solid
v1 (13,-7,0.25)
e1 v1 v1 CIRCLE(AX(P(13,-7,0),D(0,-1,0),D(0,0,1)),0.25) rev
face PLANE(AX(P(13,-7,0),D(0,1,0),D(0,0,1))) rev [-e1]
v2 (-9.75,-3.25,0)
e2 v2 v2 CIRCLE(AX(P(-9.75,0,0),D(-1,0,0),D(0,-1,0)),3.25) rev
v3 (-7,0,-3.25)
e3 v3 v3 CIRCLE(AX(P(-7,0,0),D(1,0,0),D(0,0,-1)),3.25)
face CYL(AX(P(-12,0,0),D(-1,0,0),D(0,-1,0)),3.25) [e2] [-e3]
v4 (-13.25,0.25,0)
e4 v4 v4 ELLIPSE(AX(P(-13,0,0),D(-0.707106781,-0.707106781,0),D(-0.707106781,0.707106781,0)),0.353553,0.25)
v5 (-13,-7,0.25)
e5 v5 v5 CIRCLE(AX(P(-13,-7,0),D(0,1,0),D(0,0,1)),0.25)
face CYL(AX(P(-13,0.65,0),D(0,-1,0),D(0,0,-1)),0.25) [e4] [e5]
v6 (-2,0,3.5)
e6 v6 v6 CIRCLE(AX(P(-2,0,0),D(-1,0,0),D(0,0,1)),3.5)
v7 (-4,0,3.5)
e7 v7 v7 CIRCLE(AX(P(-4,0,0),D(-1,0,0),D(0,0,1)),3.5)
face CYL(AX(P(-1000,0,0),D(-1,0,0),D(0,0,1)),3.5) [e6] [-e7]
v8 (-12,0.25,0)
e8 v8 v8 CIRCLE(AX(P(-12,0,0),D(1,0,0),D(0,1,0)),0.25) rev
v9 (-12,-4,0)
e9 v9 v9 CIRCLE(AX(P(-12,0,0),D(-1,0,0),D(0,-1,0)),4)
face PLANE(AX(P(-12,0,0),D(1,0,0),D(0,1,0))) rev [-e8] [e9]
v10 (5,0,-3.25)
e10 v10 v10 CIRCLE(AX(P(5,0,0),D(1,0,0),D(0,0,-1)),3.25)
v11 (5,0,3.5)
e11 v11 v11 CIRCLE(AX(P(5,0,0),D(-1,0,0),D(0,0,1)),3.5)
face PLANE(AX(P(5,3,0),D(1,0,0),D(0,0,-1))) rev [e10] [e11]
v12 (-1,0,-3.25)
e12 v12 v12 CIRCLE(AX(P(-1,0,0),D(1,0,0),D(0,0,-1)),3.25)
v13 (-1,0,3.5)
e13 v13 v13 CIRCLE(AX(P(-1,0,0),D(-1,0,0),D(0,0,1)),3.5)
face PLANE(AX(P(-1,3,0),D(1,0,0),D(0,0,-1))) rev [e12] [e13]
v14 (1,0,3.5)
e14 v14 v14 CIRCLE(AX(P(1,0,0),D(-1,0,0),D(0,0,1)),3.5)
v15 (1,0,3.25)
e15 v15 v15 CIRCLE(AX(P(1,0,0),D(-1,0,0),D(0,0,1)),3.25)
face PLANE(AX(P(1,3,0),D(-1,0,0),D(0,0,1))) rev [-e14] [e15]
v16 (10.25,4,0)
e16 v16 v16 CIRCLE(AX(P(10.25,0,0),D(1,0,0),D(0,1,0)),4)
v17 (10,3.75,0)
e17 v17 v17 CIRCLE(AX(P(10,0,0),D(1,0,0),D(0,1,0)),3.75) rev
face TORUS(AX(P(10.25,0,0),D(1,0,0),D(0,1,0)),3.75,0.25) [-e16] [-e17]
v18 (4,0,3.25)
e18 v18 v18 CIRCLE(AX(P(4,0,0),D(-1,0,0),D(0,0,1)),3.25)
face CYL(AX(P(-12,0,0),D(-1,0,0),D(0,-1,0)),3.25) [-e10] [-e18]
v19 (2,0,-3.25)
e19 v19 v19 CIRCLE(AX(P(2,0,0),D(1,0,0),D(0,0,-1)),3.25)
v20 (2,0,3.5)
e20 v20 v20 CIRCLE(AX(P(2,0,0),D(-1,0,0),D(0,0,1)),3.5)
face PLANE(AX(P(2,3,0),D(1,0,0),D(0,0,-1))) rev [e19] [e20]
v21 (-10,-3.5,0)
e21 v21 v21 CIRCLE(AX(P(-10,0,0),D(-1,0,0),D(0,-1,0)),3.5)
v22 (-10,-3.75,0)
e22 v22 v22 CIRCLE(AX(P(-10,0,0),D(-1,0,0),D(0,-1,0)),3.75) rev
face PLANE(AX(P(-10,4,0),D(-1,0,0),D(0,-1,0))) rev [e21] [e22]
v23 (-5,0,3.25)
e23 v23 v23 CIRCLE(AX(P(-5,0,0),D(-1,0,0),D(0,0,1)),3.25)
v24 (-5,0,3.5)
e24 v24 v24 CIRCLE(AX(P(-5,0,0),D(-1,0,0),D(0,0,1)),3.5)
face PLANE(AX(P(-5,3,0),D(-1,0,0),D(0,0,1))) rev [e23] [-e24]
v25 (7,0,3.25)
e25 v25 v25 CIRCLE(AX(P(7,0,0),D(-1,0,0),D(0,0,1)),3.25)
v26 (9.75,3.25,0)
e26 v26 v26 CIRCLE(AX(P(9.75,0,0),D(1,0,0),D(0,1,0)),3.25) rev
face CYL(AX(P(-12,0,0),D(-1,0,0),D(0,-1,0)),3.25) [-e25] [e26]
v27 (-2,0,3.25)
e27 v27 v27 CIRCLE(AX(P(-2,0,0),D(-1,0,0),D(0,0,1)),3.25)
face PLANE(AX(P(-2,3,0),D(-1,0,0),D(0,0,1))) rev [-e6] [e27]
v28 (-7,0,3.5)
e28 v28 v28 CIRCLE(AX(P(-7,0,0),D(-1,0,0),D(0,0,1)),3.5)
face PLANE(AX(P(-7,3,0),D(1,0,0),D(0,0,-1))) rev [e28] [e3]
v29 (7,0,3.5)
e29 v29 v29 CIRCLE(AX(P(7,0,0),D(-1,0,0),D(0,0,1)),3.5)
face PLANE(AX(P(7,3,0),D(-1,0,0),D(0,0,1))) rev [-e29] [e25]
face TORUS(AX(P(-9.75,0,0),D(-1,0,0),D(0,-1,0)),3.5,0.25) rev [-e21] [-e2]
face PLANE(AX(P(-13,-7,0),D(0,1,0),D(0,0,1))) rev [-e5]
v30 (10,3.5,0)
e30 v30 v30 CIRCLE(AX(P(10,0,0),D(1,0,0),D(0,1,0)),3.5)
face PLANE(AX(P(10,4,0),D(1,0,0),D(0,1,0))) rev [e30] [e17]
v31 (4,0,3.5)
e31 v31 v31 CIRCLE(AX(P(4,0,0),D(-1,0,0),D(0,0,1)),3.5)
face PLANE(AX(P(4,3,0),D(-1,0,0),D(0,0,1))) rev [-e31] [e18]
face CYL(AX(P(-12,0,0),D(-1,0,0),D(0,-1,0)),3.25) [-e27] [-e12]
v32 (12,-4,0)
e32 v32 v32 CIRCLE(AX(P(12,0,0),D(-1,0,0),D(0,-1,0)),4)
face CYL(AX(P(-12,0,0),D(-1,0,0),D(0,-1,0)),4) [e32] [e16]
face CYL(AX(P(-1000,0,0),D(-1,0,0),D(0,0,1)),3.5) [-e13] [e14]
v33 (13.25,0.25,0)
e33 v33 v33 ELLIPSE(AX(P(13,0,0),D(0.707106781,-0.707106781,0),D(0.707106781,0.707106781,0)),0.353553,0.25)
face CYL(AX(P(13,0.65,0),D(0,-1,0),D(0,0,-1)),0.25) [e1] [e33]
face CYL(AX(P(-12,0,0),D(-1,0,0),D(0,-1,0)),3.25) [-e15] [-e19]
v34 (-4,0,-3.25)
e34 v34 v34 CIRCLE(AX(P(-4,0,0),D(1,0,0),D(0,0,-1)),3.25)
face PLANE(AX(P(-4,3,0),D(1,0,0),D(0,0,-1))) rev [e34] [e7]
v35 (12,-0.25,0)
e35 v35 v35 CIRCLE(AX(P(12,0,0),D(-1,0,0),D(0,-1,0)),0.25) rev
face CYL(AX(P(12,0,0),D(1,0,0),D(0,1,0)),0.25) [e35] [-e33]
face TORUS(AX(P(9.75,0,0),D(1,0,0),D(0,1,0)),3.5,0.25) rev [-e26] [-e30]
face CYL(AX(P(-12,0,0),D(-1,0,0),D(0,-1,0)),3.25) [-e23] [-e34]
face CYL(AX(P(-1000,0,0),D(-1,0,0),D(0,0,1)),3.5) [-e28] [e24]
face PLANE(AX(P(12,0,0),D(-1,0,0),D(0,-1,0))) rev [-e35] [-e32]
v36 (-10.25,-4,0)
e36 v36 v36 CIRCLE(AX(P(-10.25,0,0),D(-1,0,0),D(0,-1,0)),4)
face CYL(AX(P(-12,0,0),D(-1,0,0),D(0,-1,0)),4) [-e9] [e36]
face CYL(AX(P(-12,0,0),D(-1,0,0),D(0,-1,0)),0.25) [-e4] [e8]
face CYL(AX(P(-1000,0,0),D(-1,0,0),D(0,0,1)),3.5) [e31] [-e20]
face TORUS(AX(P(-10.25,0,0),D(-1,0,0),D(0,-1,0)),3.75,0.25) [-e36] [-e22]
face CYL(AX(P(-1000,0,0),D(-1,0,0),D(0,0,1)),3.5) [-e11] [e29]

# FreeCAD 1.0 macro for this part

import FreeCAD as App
import Part
import Sketcher

V = App.Vector


def edges_at(feature, points):
    """Names of the edges that pass closest to the given points."""
    edges = feature.Shape.Edges
    near = lambda p: min(range(len(edges)), key=lambda i: edges[i].distToShape(Part.Vertex(*p))[0])
    return sorted({f"Edge{near(p) + 1}" for p in points})

doc = App.newDocument("Part")
body = doc.addObject("PartDesign::Body", "Body")

sketch1 = body.newObject("Sketcher::SketchObject", "Sketch")
sketch1.AttachmentSupport = (doc.getObject("XY_Plane"), [""])
sketch1.MapMode = "FlatFace"
sketch1.addGeometry(Part.LineSegment(V(-12, 4, 0), V(-12, 0, 0)), False)
sketch1.addGeometry(Part.LineSegment(V(-12, 0, 0), V(12, 0, 0)), False)
sketch1.addGeometry(Part.LineSegment(V(12, 0, 0), V(12, 4, 0)), False)
sketch1.addGeometry(Part.LineSegment(V(12, 4, 0), V(10, 4, 0)), False)
sketch1.addGeometry(Part.LineSegment(V(10, 4, 0), V(10, 3.2, 0)), False)
sketch1.addGeometry(Part.LineSegment(V(10, 3.2, 0), V(-10, 3.2, 0)), False)
sketch1.addGeometry(Part.LineSegment(V(-10, 3.2, 0), V(-10, 4, 0)), False)
sketch1.addGeometry(Part.LineSegment(V(-10, 4, 0), V(-12, 4, 0)), False)
sketch1.addConstraint(Sketcher.Constraint("Coincident", 0, 2, 1, 1))
sketch1.addConstraint(Sketcher.Constraint("Coincident", 1, 2, 2, 1))
sketch1.addConstraint(Sketcher.Constraint("Coincident", 2, 2, 3, 1))
sketch1.addConstraint(Sketcher.Constraint("Coincident", 3, 2, 4, 1))
sketch1.addConstraint(Sketcher.Constraint("Coincident", 4, 2, 5, 1))
sketch1.addConstraint(Sketcher.Constraint("Coincident", 5, 2, 6, 1))
sketch1.addConstraint(Sketcher.Constraint("Coincident", 6, 2, 7, 1))
sketch1.addConstraint(Sketcher.Constraint("Coincident", 7, 2, 0, 1))
sketch1.addConstraint(Sketcher.Constraint("Vertical", 0))
sketch1.addConstraint(Sketcher.Constraint("Horizontal", 1))
sketch1.addConstraint(Sketcher.Constraint("Vertical", 2))
sketch1.addConstraint(Sketcher.Constraint("Horizontal", 3))
sketch1.addConstraint(Sketcher.Constraint("Vertical", 4))
sketch1.addConstraint(Sketcher.Constraint("Horizontal", 5))
sketch1.addConstraint(Sketcher.Constraint("Vertical", 6))
sketch1.addConstraint(Sketcher.Constraint("Horizontal", 7))
sketch1.addConstraint(Sketcher.Constraint("Symmetric", 0, 2, 1, 2, -1, 1))
sketch1.addConstraint(Sketcher.Constraint("Symmetric", 3, 2, 6, 2, -2))
sketch1.addConstraint(Sketcher.Constraint("DistanceX", 1, 1, 1, 2, 24.0))
sketch1.addConstraint(Sketcher.Constraint("DistanceX", 3, 2, 3, 1, 2.0))
sketch1.addConstraint(Sketcher.Constraint("DistanceY", 0, 2, 0, 1, 4.0))
sketch1.addConstraint(Sketcher.Constraint("DistanceY", 4, 2, 4, 1, 0.75))
revolution = body.newObject("PartDesign::Revolution", "Revolution")
revolution.Profile = sketch1
revolution.ReferenceAxis = (sketch1, ["H_Axis"])
revolution.Angle = 360
doc.recompute()

fillet = body.newObject("PartDesign::Fillet", "Fillet")
fillet.Base = (revolution, edges_at(revolution, [
    (-10, 4, 0),
    (-10, 3.25, 0),
    (10, 3.25, 0),
    (10, 4, 0),
]))
fillet.Radius = 0.25

sketch2 = body.newObject("Sketcher::SketchObject", "Sketch001")
sketch2.AttachmentSupport = (doc.getObject("XY_Plane"), [""])
sketch2.MapMode = "FlatFace"
sketch2.addGeometry(Part.LineSegment(V(2, 3.5, 0), V(2, 3, 0)), False)
sketch2.addGeometry(Part.LineSegment(V(2, 3, 0), V(4, 3, 0)), False)
sketch2.addGeometry(Part.LineSegment(V(4, 3, 0), V(4, 3.5, 0)), False)
sketch2.addGeometry(Part.LineSegment(V(4, 3.5, 0), V(2, 3.5, 0)), False)
sketch2.addGeometry(Part.LineSegment(V(-1, 3.5, 0), V(-1, 3, 0)), False)
sketch2.addGeometry(Part.LineSegment(V(-1, 3, 0), V(1, 3, 0)), False)
sketch2.addGeometry(Part.LineSegment(V(1, 3, 0), V(1, 3.5, 0)), False)
sketch2.addGeometry(Part.LineSegment(V(1, 3.5, 0), V(-1, 3.5, 0)), False)
sketch2.addGeometry(Part.LineSegment(V(5, 3.5, 0), V(5, 3, 0)), False)
sketch2.addGeometry(Part.LineSegment(V(5, 3, 0), V(7, 3, 0)), False)
sketch2.addGeometry(Part.LineSegment(V(7, 3, 0), V(7, 3.5, 0)), False)
sketch2.addGeometry(Part.LineSegment(V(7, 3.5, 0), V(5, 3.5, 0)), False)
sketch2.addGeometry(Part.LineSegment(V(-4, 3.5, 0), V(-4, 3, 0)), False)
sketch2.addGeometry(Part.LineSegment(V(-4, 3, 0), V(-2, 3, 0)), False)
sketch2.addGeometry(Part.LineSegment(V(-2, 3, 0), V(-2, 3.5, 0)), False)
sketch2.addGeometry(Part.LineSegment(V(-2, 3.5, 0), V(-4, 3.5, 0)), False)
sketch2.addGeometry(Part.LineSegment(V(-7, 3.5, 0), V(-7, 3, 0)), False)
sketch2.addGeometry(Part.LineSegment(V(-7, 3, 0), V(-5, 3, 0)), False)
sketch2.addGeometry(Part.LineSegment(V(-5, 3, 0), V(-5, 3.5, 0)), False)
sketch2.addGeometry(Part.LineSegment(V(-5, 3.5, 0), V(-7, 3.5, 0)), False)
sketch2.addConstraint(Sketcher.Constraint("Coincident", 0, 2, 1, 1))
sketch2.addConstraint(Sketcher.Constraint("Coincident", 1, 2, 2, 1))
sketch2.addConstraint(Sketcher.Constraint("Coincident", 2, 2, 3, 1))
sketch2.addConstraint(Sketcher.Constraint("Coincident", 3, 2, 0, 1))
sketch2.addConstraint(Sketcher.Constraint("Coincident", 4, 2, 5, 1))
sketch2.addConstraint(Sketcher.Constraint("Coincident", 5, 2, 6, 1))
sketch2.addConstraint(Sketcher.Constraint("Coincident", 6, 2, 7, 1))
sketch2.addConstraint(Sketcher.Constraint("Coincident", 7, 2, 4, 1))
sketch2.addConstraint(Sketcher.Constraint("Coincident", 8, 2, 9, 1))
sketch2.addConstraint(Sketcher.Constraint("Coincident", 9, 2, 10, 1))
sketch2.addConstraint(Sketcher.Constraint("Coincident", 10, 2, 11, 1))
sketch2.addConstraint(Sketcher.Constraint("Coincident", 11, 2, 8, 1))
sketch2.addConstraint(Sketcher.Constraint("Coincident", 12, 2, 13, 1))
sketch2.addConstraint(Sketcher.Constraint("Coincident", 13, 2, 14, 1))
sketch2.addConstraint(Sketcher.Constraint("Coincident", 14, 2, 15, 1))
sketch2.addConstraint(Sketcher.Constraint("Coincident", 15, 2, 12, 1))
sketch2.addConstraint(Sketcher.Constraint("Coincident", 16, 2, 17, 1))
sketch2.addConstraint(Sketcher.Constraint("Coincident", 17, 2, 18, 1))
sketch2.addConstraint(Sketcher.Constraint("Coincident", 18, 2, 19, 1))
sketch2.addConstraint(Sketcher.Constraint("Coincident", 19, 2, 16, 1))
sketch2.addConstraint(Sketcher.Constraint("Vertical", 0))
sketch2.addConstraint(Sketcher.Constraint("Horizontal", 1))
sketch2.addConstraint(Sketcher.Constraint("Vertical", 2))
sketch2.addConstraint(Sketcher.Constraint("Horizontal", 3))
sketch2.addConstraint(Sketcher.Constraint("Vertical", 4))
sketch2.addConstraint(Sketcher.Constraint("Horizontal", 5))
sketch2.addConstraint(Sketcher.Constraint("Vertical", 6))
sketch2.addConstraint(Sketcher.Constraint("Horizontal", 7))
sketch2.addConstraint(Sketcher.Constraint("Vertical", 8))
sketch2.addConstraint(Sketcher.Constraint("Horizontal", 9))
sketch2.addConstraint(Sketcher.Constraint("Vertical", 10))
sketch2.addConstraint(Sketcher.Constraint("Horizontal", 11))
sketch2.addConstraint(Sketcher.Constraint("Vertical", 12))
sketch2.addConstraint(Sketcher.Constraint("Horizontal", 13))
sketch2.addConstraint(Sketcher.Constraint("Vertical", 14))
sketch2.addConstraint(Sketcher.Constraint("Horizontal", 15))
sketch2.addConstraint(Sketcher.Constraint("Vertical", 16))
sketch2.addConstraint(Sketcher.Constraint("Horizontal", 17))
sketch2.addConstraint(Sketcher.Constraint("Vertical", 18))
sketch2.addConstraint(Sketcher.Constraint("Horizontal", 19))
sketch2.addConstraint(Sketcher.Constraint("Symmetric", 1, 2, 12, 2, -2))
sketch2.addConstraint(Sketcher.Constraint("Symmetric", 3, 2, 14, 2, -2))
sketch2.addConstraint(Sketcher.Constraint("Symmetric", 9, 2, 16, 2, -2))
sketch2.addConstraint(Sketcher.Constraint("Symmetric", 11, 2, 18, 2, -2))
sketch2.addConstraint(Sketcher.Constraint("Horizontal", 1, 2, 4, 2))
sketch2.addConstraint(Sketcher.Constraint("Horizontal", 3, 2, 6, 2))
sketch2.addConstraint(Sketcher.Constraint("Horizontal", 5, 2, 8, 2))
sketch2.addConstraint(Sketcher.Constraint("Horizontal", 7, 2, 10, 2))
sketch2.addConstraint(Sketcher.Constraint("Equal", 3, 5))
sketch2.addConstraint(Sketcher.Constraint("Equal", 7, 9))
sketch2.addConstraint(Sketcher.Constraint("DistanceX", 1, 1, 1, 2, 2.0))
sketch2.addConstraint(Sketcher.Constraint("DistanceY", 0, 2, 0, 1, 0.5))
sketch2.addConstraint(Sketcher.Constraint("DistanceX", -1, 1, 0, 2, 2.0))
sketch2.addConstraint(Sketcher.Constraint("DistanceY", -1, 1, 0, 2, 3.0))
sketch2.addConstraint(Sketcher.Constraint("DistanceX", 4, 2, -1, 1, 1.0))
sketch2.addConstraint(Sketcher.Constraint("DistanceX", -1, 1, 8, 2, 5.0))
revolution2 = body.newObject("PartDesign::Revolution", "Revolution001")
revolution2.Profile = sketch2
revolution2.ReferenceAxis = (sketch2, ["H_Axis"])
revolution2.Angle = 360

sketch3 = body.newObject("Sketcher::SketchObject", "Sketch002")
sketch3.AttachmentSupport = (doc.getObject("YZ_Plane"), [""])
sketch3.MapMode = "FlatFace"
sketch3.AttachmentOffset = App.Placement(V(0, 0, -12), App.Rotation())
sketch3.addGeometry(Part.Circle(V(0, 0, 0), V(0, 0, 1), 0.25), False)
sketch3.addConstraint(Sketcher.Constraint("Coincident", 0, 3, -1, 1))
sketch3.addConstraint(Sketcher.Constraint("Diameter", 0, 0.5))

sketch4 = body.newObject("Sketcher::SketchObject", "Sketch003")
sketch4.AttachmentSupport = (doc.getObject("XY_Plane"), [""])
sketch4.MapMode = "FlatFace"
sketch4.addGeometry(Part.LineSegment(V(-12, 0, 0), V(-13, 0, 0)), False)
sketch4.addGeometry(Part.LineSegment(V(-13, 0, 0), V(-13, -7, 0)), False)
sketch4.addConstraint(Sketcher.Constraint("Coincident", 0, 2, 1, 1))
sketch4.addConstraint(Sketcher.Constraint("Horizontal", 0))
sketch4.addConstraint(Sketcher.Constraint("Vertical", 1))
sketch4.addConstraint(Sketcher.Constraint("PointOnObject", 0, 1, -1))
sketch4.addConstraint(Sketcher.Constraint("DistanceX", 0, 2, 0, 1, 1.0))
sketch4.addConstraint(Sketcher.Constraint("DistanceY", 1, 2, 1, 1, 7.0))
sketch4.addConstraint(Sketcher.Constraint("DistanceX", 0, 1, -1, 1, 12.0))
doc.recompute()

additivepipe = body.newObject("PartDesign::AdditivePipe", "AdditivePipe")
additivepipe.Profile = sketch3
additivepipe.Spine = (sketch4, ["Edge1", "Edge2"])
additivepipe.Transition = "Right corner"
doc.recompute()

mirrored = body.newObject("PartDesign::Mirrored", "Mirrored")
mirrored.Originals = [additivepipe]
mirrored.MirrorPlane = (doc.getObject("YZ_Plane"), [""])
body.Tip = mirrored

doc.recompute()
